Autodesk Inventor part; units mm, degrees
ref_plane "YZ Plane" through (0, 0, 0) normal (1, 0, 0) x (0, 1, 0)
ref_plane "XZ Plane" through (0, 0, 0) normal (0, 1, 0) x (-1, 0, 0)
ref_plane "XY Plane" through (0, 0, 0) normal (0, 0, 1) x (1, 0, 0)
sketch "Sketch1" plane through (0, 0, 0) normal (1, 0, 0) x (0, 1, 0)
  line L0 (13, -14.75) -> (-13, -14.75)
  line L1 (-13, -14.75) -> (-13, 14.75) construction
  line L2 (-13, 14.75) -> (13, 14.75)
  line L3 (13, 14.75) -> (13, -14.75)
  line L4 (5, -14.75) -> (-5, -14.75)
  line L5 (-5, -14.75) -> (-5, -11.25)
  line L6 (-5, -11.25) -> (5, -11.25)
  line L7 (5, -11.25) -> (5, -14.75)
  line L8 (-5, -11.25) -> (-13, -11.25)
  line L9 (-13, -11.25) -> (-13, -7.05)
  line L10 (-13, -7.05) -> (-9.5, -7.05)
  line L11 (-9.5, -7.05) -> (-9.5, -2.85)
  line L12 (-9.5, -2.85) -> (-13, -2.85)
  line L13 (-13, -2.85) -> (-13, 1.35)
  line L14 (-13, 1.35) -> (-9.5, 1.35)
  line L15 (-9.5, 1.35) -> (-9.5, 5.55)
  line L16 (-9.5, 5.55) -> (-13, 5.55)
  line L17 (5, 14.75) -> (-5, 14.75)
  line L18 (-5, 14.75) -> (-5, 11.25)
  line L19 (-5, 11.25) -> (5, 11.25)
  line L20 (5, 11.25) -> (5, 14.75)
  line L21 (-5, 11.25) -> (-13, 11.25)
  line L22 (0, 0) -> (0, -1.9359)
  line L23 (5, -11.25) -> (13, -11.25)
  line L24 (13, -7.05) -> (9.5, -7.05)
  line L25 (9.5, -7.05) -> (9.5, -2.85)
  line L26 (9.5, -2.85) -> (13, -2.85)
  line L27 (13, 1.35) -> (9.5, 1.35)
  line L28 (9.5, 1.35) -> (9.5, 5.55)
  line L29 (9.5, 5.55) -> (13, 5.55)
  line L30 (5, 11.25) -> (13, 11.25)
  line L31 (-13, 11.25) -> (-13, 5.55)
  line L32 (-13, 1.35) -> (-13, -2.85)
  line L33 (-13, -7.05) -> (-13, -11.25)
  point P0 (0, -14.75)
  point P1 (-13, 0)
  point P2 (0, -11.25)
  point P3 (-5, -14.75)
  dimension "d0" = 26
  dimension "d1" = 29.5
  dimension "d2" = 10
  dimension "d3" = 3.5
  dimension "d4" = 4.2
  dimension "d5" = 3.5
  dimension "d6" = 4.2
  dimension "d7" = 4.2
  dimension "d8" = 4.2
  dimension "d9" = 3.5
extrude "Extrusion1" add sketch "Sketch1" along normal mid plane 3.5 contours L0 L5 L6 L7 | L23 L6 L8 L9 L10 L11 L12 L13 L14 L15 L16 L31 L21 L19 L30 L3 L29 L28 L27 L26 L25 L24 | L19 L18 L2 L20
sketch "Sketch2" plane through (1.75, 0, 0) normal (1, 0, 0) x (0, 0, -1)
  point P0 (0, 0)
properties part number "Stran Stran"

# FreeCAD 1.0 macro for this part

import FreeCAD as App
import Part
import Sketcher
from FreeCAD import Vector
Q = App.Units.Quantity

doc = App.newDocument("Part")
body = doc.addObject("PartDesign::Body", "Body")

sketch1 = body.newObject("Sketcher::SketchObject", "Sketch")
sketch1.AttachmentSupport = (doc.getObject("YZ_Plane"), [""])
sketch1.MapMode = "FlatFace"
sketch1.addGeometry([
    Part.LineSegment(Vector(-5, -14.75, 0), Vector(5, -14.75, 0)),
    Part.LineSegment(Vector(5, -14.75, 0), Vector(5, -11.25, 0)),
    Part.LineSegment(Vector(5, -11.25, 0), Vector(13, -11.25, 0)),
    Part.LineSegment(Vector(13, -11.25, 0), Vector(13, -7.05, 0)),
    Part.LineSegment(Vector(13, -7.05, 0), Vector(9.5, -7.05, 0)),
    Part.LineSegment(Vector(9.5, -7.05, 0), Vector(9.5, -2.85, 0)),
    Part.LineSegment(Vector(9.5, -2.85, 0), Vector(13, -2.85, 0)),
    Part.LineSegment(Vector(13, -2.85, 0), Vector(13, 1.35, 0)),
    Part.LineSegment(Vector(13, 1.35, 0), Vector(9.5, 1.35, 0)),
    Part.LineSegment(Vector(9.5, 1.35, 0), Vector(9.5, 5.55, 0)),
    Part.LineSegment(Vector(9.5, 5.55, 0), Vector(13, 5.55, 0)),
    Part.LineSegment(Vector(13, 5.55, 0), Vector(13, 11.25, 0)),
    Part.LineSegment(Vector(13, 11.25, 0), Vector(5, 11.25, 0)),
    Part.LineSegment(Vector(5, 11.25, 0), Vector(5, 14.75, 0)),
    Part.LineSegment(Vector(5, 14.75, 0), Vector(-5, 14.75, 0)),
    Part.LineSegment(Vector(-5, 14.75, 0), Vector(-5, 11.25, 0)),
    Part.LineSegment(Vector(-5, 11.25, 0), Vector(-13, 11.25, 0)),
    Part.LineSegment(Vector(-13, 11.25, 0), Vector(-13, 5.55, 0)),
    Part.LineSegment(Vector(-13, 5.55, 0), Vector(-9.5, 5.55, 0)),
    Part.LineSegment(Vector(-9.5, 5.55, 0), Vector(-9.5, 1.35, 0)),
    Part.LineSegment(Vector(-9.5, 1.35, 0), Vector(-13, 1.35, 0)),
    Part.LineSegment(Vector(-13, 1.35, 0), Vector(-13, -2.85, 0)),
    Part.LineSegment(Vector(-13, -2.85, 0), Vector(-9.5, -2.85, 0)),
    Part.LineSegment(Vector(-9.5, -2.85, 0), Vector(-9.5, -7.05, 0)),
    Part.LineSegment(Vector(-9.5, -7.05, 0), Vector(-13, -7.05, 0)),
    Part.LineSegment(Vector(-13, -7.05, 0), Vector(-13, -11.25, 0)),
    Part.LineSegment(Vector(-13, -11.25, 0), Vector(-5, -11.25, 0)),
    Part.LineSegment(Vector(-5, -11.25, 0), Vector(-5, -14.75, 0)),
], False)
sketch1.addConstraint([
    Sketcher.Constraint("Coincident", 0, 2, 1, 1),
    Sketcher.Constraint("Coincident", 1, 2, 2, 1),
    Sketcher.Constraint("Coincident", 2, 2, 3, 1),
    Sketcher.Constraint("Coincident", 3, 2, 4, 1),
    Sketcher.Constraint("Coincident", 4, 2, 5, 1),
    Sketcher.Constraint("Coincident", 5, 2, 6, 1),
    Sketcher.Constraint("Coincident", 6, 2, 7, 1),
    Sketcher.Constraint("Coincident", 7, 2, 8, 1),
    Sketcher.Constraint("Coincident", 8, 2, 9, 1),
    Sketcher.Constraint("Coincident", 9, 2, 10, 1),
    Sketcher.Constraint("Coincident", 10, 2, 11, 1),
    Sketcher.Constraint("Coincident", 11, 2, 12, 1),
    Sketcher.Constraint("Coincident", 12, 2, 13, 1),
    Sketcher.Constraint("Coincident", 13, 2, 14, 1),
    Sketcher.Constraint("Coincident", 14, 2, 15, 1),
    Sketcher.Constraint("Coincident", 15, 2, 16, 1),
    Sketcher.Constraint("Coincident", 16, 2, 17, 1),
    Sketcher.Constraint("Coincident", 17, 2, 18, 1),
    Sketcher.Constraint("Coincident", 18, 2, 19, 1),
    Sketcher.Constraint("Coincident", 19, 2, 20, 1),
    Sketcher.Constraint("Coincident", 20, 2, 21, 1),
    Sketcher.Constraint("Coincident", 21, 2, 22, 1),
    Sketcher.Constraint("Coincident", 22, 2, 23, 1),
    Sketcher.Constraint("Coincident", 23, 2, 24, 1),
    Sketcher.Constraint("Coincident", 24, 2, 25, 1),
    Sketcher.Constraint("Coincident", 25, 2, 26, 1),
    Sketcher.Constraint("Coincident", 26, 2, 27, 1),
    Sketcher.Constraint("Coincident", 27, 2, 0, 1),
    Sketcher.Constraint("Horizontal", 0),
    Sketcher.Constraint("Vertical", 1),
    Sketcher.Constraint("Horizontal", 2),
    Sketcher.Constraint("Vertical", 3),
    Sketcher.Constraint("Horizontal", 4),
    Sketcher.Constraint("Vertical", 5),
    Sketcher.Constraint("Horizontal", 6),
    Sketcher.Constraint("Vertical", 7),
    Sketcher.Constraint("Horizontal", 8),
    Sketcher.Constraint("Vertical", 9),
    Sketcher.Constraint("Horizontal", 10),
    Sketcher.Constraint("Vertical", 11),
    Sketcher.Constraint("Horizontal", 12),
    Sketcher.Constraint("Vertical", 13),
    Sketcher.Constraint("Horizontal", 14),
    Sketcher.Constraint("Vertical", 15),
    Sketcher.Constraint("Horizontal", 16),
    Sketcher.Constraint("Vertical", 17),
    Sketcher.Constraint("Horizontal", 18),
    Sketcher.Constraint("Vertical", 19),
    Sketcher.Constraint("Horizontal", 20),
    Sketcher.Constraint("Vertical", 21),
    Sketcher.Constraint("Horizontal", 22),
    Sketcher.Constraint("Vertical", 23),
    Sketcher.Constraint("Horizontal", 24),
    Sketcher.Constraint("Vertical", 25),
    Sketcher.Constraint("Horizontal", 26),
    Sketcher.Constraint("Vertical", 27),
    Sketcher.Constraint("Symmetric", 0, 2, 14, 2, -1, 1),
    Sketcher.Constraint("Symmetric", 2, 2, 16, 2, -1, 1),
    Sketcher.Constraint("Symmetric", 11, 2, 25, 2, -1, 1),
    Sketcher.Constraint("Symmetric", 12, 2, 15, 2, -2),
    Sketcher.Constraint("Symmetric", 10, 2, 17, 2, -2),
    Sketcher.Constraint("Symmetric", 8, 2, 19, 2, -2),
    Sketcher.Constraint("Symmetric", 6, 2, 21, 2, -2),
    Sketcher.Constraint("Symmetric", 4, 2, 23, 2, -2),
    Sketcher.Constraint("Vertical", 3, 2, 6, 2),
    Sketcher.Constraint("Vertical", 5, 2, 8, 2),
    Sketcher.Constraint("Vertical", 15, 2, 26, 2),
    Sketcher.Constraint("Equal", 24, 1),
    Sketcher.Constraint("Equal", 3, 5),
    Sketcher.Constraint("Equal", 5, 7),
    Sketcher.Constraint("Equal", 7, 9),
    Sketcher.Constraint("DistanceX", 0, 1, 0, 2, Q("10 mm")),
    Sketcher.Constraint("DistanceX", 4, 2, 4, 1, Q("3.5 mm")),
    Sketcher.Constraint("DistanceY", 3, 1, 3, 2, Q("4.2 mm")),
    Sketcher.Constraint("DistanceX", 2, 1, 2, 2, Q("8 mm")),
    Sketcher.Constraint("DistanceY", 11, 1, 11, 2, Q("5.7 mm")),
])
pad1 = body.newObject("PartDesign::Pad", "Pad")
pad1.Profile = sketch1
pad1.Length = 3.5
pad1.Midplane = True

doc.recompute()
